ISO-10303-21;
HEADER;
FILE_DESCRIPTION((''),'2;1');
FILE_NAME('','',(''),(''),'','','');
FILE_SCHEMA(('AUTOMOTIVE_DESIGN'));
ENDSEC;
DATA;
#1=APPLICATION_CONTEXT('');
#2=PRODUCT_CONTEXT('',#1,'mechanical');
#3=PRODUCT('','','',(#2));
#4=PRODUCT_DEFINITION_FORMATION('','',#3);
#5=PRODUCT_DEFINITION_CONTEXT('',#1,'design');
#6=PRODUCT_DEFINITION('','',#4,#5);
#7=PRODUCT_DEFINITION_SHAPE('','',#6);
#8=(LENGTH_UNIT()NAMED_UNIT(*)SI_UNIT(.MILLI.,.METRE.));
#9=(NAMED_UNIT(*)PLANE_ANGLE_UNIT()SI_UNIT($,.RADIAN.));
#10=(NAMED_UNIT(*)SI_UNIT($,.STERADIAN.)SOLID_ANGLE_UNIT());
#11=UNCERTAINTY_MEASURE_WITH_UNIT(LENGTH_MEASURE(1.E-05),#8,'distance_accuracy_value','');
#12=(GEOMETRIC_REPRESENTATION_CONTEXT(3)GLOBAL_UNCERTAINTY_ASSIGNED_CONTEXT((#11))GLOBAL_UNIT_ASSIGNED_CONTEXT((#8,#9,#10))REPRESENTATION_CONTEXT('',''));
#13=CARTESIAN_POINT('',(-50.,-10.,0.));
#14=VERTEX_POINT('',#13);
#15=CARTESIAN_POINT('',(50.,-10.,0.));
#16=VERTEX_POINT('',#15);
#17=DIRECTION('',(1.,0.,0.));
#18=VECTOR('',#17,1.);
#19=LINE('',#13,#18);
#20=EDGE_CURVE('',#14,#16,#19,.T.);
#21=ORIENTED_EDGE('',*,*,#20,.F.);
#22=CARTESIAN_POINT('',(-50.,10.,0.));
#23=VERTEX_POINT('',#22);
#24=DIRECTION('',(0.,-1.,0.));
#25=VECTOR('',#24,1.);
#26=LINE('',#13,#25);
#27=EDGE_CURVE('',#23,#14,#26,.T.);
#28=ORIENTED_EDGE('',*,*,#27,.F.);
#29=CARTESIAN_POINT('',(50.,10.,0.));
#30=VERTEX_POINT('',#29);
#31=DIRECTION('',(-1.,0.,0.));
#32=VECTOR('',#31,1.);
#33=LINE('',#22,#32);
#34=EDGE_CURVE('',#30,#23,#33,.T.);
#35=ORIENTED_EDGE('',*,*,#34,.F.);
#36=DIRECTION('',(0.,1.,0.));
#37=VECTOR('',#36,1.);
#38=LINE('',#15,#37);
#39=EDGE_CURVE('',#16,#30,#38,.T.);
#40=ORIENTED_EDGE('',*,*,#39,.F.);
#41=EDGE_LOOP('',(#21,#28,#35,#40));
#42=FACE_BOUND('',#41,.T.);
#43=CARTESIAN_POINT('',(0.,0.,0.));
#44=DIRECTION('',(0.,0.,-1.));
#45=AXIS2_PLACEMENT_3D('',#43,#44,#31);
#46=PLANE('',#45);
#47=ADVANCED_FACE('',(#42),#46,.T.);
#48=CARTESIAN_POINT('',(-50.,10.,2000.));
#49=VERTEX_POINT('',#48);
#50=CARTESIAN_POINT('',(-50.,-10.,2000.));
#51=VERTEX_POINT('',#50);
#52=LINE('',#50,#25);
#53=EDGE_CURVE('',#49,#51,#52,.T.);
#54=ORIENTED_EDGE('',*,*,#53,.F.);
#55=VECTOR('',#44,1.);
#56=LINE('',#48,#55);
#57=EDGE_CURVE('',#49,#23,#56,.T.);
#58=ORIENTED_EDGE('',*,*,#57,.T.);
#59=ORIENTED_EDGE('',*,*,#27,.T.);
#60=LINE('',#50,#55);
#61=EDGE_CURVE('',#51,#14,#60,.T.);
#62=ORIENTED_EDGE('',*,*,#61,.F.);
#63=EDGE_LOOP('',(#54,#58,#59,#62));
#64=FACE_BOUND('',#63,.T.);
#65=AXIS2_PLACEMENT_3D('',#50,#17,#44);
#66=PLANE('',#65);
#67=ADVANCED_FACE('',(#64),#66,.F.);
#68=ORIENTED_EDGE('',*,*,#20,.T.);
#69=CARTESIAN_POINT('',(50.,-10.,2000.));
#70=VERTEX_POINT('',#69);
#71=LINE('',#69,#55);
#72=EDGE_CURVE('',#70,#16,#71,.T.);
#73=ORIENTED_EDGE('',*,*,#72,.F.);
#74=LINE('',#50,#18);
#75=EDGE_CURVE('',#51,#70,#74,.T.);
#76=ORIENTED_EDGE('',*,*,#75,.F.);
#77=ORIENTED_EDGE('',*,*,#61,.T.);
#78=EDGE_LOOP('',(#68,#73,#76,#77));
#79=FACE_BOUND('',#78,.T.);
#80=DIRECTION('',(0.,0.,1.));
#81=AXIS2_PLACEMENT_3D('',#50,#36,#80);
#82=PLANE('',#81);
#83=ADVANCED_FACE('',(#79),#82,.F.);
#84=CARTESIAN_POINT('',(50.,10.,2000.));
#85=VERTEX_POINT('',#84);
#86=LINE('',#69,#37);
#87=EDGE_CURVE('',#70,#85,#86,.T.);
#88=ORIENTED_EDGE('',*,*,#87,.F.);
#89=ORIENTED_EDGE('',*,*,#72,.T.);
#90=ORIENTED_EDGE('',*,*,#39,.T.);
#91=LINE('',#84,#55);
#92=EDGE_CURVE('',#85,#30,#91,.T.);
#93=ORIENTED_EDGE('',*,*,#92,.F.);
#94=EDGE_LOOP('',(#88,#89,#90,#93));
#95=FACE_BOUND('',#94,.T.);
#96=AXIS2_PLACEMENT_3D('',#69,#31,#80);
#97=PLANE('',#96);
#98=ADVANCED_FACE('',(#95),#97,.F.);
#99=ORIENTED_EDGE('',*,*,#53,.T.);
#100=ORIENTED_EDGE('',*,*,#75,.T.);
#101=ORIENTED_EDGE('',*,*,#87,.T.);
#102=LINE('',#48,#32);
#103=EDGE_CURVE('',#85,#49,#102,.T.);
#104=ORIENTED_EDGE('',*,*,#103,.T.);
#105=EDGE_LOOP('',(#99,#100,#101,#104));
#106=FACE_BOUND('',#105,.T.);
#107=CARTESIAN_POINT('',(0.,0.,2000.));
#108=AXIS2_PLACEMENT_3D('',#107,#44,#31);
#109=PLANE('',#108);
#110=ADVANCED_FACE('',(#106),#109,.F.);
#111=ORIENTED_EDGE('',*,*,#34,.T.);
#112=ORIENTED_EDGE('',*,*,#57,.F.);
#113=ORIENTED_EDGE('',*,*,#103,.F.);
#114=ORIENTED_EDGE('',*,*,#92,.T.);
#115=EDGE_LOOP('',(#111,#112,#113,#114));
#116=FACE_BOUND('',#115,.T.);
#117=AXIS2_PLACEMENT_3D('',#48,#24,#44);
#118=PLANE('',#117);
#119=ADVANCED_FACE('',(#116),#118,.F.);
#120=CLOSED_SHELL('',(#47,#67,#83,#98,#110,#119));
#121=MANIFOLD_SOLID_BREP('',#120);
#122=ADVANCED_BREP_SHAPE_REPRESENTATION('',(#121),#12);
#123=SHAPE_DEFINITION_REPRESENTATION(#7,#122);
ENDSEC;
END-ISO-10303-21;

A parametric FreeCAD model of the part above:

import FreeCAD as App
import Part
import Sketcher
Q = App.Units.Quantity

doc = App.newDocument("Part")
body = doc.addObject("PartDesign::Body", "Body")

sketch1 = body.newObject("Sketcher::SketchObject", "Sketch")
sketch1.AttachmentSupport = (doc.getObject("XY_Plane"), [""])
sketch1.MapMode = "FlatFace"
sketch1.addGeometry(Part.LineSegment(App.Vector(-50, 10, 0), App.Vector(-50, -10, 0)), False)
sketch1.addGeometry(Part.LineSegment(App.Vector(-50, -10, 0), App.Vector(50, -10, 0)), False)
sketch1.addGeometry(Part.LineSegment(App.Vector(50, -10, 0), App.Vector(50, 10, 0)), False)
sketch1.addGeometry(Part.LineSegment(App.Vector(50, 10, 0), App.Vector(-50, 10, 0)), False)
sketch1.addConstraint(Sketcher.Constraint("Coincident", 0, 2, 1, 1))
sketch1.addConstraint(Sketcher.Constraint("Coincident", 1, 2, 2, 1))
sketch1.addConstraint(Sketcher.Constraint("Coincident", 2, 2, 3, 1))
sketch1.addConstraint(Sketcher.Constraint("Coincident", 3, 2, 0, 1))
sketch1.addConstraint(Sketcher.Constraint("Vertical", 0))
sketch1.addConstraint(Sketcher.Constraint("Horizontal", 1))
sketch1.addConstraint(Sketcher.Constraint("Vertical", 2))
sketch1.addConstraint(Sketcher.Constraint("Horizontal", 3))
sketch1.addConstraint(Sketcher.Constraint("Symmetric", 0, 2, 2, 2, -1, 1))
sketch1.addConstraint(Sketcher.Constraint("DistanceX", 1, 1, 1, 2, Q("100 mm")))
sketch1.addConstraint(Sketcher.Constraint("DistanceY", 0, 2, 0, 1, Q("20 mm")))
pad1 = body.newObject("PartDesign::Pad", "Pad")
pad1.Profile = sketch1
pad1.Length = 2000

doc.recompute()
